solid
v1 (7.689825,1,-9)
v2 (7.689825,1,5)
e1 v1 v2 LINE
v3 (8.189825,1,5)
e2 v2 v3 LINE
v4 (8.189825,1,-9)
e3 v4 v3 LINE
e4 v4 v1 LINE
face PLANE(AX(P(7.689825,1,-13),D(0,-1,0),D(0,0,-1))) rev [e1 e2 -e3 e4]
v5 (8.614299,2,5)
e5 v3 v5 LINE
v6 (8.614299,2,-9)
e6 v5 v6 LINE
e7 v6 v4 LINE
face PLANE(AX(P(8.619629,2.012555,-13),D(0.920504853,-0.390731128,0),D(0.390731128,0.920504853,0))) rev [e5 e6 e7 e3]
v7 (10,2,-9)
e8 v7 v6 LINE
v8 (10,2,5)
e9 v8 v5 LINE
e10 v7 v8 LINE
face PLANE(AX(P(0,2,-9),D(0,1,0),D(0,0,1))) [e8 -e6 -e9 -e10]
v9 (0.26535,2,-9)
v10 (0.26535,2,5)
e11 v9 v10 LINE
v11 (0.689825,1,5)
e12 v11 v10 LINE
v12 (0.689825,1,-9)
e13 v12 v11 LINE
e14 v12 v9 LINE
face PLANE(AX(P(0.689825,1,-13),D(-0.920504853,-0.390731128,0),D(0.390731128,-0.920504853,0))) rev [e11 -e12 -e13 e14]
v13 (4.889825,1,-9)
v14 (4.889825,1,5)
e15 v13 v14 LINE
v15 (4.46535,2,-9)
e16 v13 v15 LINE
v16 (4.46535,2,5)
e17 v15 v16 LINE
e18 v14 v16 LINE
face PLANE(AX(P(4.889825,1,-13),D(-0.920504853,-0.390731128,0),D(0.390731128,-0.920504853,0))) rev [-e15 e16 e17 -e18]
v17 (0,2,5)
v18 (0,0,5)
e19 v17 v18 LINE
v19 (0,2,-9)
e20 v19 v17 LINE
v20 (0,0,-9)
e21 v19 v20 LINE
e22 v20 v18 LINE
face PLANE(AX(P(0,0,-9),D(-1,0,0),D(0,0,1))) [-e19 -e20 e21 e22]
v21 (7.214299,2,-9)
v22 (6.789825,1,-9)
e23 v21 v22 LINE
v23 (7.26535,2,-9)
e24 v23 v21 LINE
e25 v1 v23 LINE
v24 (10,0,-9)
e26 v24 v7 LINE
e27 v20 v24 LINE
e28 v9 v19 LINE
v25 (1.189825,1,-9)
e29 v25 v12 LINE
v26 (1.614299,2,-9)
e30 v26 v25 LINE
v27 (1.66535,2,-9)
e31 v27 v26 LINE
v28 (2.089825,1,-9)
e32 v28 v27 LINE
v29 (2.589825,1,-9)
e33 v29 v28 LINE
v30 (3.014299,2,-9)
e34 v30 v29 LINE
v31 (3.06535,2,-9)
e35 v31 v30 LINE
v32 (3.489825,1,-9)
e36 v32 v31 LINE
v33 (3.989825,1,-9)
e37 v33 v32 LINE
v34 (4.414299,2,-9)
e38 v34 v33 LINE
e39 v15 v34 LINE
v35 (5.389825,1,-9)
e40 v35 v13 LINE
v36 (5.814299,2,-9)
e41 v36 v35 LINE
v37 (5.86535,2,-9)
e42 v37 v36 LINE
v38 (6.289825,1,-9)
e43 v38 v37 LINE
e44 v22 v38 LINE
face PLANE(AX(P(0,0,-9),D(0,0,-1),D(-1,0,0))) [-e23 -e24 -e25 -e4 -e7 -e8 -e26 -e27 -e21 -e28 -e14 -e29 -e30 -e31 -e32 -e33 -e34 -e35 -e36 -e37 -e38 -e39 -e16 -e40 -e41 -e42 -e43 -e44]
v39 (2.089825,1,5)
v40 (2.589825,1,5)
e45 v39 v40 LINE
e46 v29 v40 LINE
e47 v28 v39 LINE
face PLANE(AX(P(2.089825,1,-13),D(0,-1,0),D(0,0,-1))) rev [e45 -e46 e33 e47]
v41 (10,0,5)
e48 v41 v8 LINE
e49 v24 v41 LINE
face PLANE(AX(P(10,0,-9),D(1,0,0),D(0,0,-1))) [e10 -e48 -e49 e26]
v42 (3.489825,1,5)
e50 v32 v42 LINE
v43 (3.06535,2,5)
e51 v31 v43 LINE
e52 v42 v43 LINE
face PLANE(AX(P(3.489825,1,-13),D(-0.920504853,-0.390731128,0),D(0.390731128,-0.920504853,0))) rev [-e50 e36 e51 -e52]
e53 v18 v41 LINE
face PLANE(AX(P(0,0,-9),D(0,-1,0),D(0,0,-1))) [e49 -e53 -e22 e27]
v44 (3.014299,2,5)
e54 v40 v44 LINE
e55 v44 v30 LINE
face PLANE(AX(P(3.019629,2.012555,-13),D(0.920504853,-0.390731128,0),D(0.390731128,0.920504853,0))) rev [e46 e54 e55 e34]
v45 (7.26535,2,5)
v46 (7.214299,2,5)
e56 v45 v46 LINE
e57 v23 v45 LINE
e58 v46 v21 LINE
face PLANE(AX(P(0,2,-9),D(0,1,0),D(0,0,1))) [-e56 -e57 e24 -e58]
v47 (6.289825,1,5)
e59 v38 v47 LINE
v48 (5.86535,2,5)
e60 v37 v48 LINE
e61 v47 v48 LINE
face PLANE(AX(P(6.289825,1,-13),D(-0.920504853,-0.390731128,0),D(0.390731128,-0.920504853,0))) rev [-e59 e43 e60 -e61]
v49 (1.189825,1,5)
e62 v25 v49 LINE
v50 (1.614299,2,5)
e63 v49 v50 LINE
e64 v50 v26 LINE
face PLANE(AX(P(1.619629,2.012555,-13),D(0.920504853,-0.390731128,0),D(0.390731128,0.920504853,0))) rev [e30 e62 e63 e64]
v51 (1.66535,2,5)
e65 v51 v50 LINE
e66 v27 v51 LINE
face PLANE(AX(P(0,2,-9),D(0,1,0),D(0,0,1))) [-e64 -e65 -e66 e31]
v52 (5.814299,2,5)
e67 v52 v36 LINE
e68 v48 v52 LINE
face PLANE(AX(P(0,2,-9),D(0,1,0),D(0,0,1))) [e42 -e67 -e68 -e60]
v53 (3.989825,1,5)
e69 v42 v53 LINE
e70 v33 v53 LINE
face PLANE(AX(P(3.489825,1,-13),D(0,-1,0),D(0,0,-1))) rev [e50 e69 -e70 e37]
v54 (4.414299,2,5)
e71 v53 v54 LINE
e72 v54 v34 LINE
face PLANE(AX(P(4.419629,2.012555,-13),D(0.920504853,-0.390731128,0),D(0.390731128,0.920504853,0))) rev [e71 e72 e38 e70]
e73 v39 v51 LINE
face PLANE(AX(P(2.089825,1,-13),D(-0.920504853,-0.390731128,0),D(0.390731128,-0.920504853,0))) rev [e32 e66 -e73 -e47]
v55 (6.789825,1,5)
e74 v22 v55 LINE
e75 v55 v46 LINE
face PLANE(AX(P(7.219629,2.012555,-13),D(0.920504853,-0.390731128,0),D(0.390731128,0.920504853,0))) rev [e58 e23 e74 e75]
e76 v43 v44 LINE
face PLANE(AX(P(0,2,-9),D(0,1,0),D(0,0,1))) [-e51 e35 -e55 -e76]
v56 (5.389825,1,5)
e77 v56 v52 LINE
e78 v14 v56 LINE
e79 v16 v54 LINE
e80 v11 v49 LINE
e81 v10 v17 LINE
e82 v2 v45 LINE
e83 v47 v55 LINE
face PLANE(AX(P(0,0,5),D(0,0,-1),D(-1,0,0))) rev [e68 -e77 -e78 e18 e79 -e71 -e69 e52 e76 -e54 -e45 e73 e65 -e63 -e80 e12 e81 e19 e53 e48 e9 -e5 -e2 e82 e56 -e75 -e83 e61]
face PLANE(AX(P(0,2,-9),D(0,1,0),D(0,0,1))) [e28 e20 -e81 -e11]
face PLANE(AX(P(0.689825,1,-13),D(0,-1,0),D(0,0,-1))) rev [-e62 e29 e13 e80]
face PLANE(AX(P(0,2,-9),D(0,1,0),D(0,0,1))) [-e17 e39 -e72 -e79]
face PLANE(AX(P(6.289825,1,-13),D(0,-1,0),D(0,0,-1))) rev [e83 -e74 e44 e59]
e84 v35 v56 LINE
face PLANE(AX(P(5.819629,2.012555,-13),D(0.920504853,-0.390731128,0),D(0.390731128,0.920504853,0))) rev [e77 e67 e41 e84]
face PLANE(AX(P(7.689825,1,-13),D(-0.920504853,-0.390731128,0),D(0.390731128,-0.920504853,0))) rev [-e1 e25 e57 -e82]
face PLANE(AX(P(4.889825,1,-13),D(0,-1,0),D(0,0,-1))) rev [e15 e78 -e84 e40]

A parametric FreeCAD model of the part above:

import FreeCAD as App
import Part
import Sketcher

V = App.Vector
Q = App.Units.Quantity


def add_polygon(sketch, points):
    """Adds a closed chain of lines whose ends are joined by coincident constraints."""
    first, n = sketch.GeometryCount, len(points)
    for a, b in zip(points, points[1:] + points[:1]):
        sketch.addGeometry(Part.LineSegment(App.Vector(*a, 0), App.Vector(*b, 0)), False)
    for i in range(n):
        sketch.addConstraint(Sketcher.Constraint("Coincident", first + i, 2, first + (i + 1) % n, 1))

doc = App.newDocument("Part")
body = doc.addObject("PartDesign::Body", "Body")

# Sketch on XY plane
sketch1 = doc.addObject("Sketcher::SketchObject", "Sketch")
body.addObject(sketch1)
sketch1.AttachmentSupport = (doc.XY_Plane, [""])
sketch1.MapMode = "FlatFace"
add_polygon(sketch1, [(0, 2), (0, 0), (10, 0), (10, 2)])  # lines 0-3
sketch1.addConstraint([
    Sketcher.Constraint("Vertical", 0),
    Sketcher.Constraint("Horizontal", 1),
    Sketcher.Constraint("Vertical", 2),
    Sketcher.Constraint("Horizontal", 3),
    Sketcher.Constraint("Coincident", 0, 2, -1, 1),
    Sketcher.Constraint("DistanceX", 1, 1, 1, 2, Q("10 mm")),
    Sketcher.Constraint("DistanceY", 0, 2, 0, 1, Q("2 mm")),
])
pad1 = doc.addObject("PartDesign::Pad", "Pad")
body.addObject(pad1)
pad1.Profile = sketch1
pad1.Type = "TwoLengths"
pad1.Length = 5
pad1.Length2 = 9

# Sketch on XY plane
sketch2 = doc.addObject("Sketcher::SketchObject", "Sketch001")
body.addObject(sketch2)
sketch2.AttachmentSupport = (doc.XY_Plane, [""])
sketch2.MapMode = "FlatFace"
sketch2.AttachmentOffset = App.Placement(V(0, 0, 5), App.Rotation())
add_polygon(sketch2, [(0.7, 1), (1.2, 1), (1.6, 2), (0.3, 2)])  # lines 0-3
sketch2.addConstraint([
    Sketcher.Constraint("Horizontal", 0),
    Sketcher.Constraint("Horizontal", 2),
    Sketcher.Constraint("Equal", 1, 3),
    Sketcher.Constraint("Angle", 1, Q("67 deg")),
    Sketcher.Constraint("DistanceX", 0, 1, 0, 2, Q("0.5 mm")),
    Sketcher.Constraint("DistanceY", -1, 1, 0, 2, Q("1 mm")),
    Sketcher.Constraint("Distance", 1, Q("1.1 mm")),
    Sketcher.Constraint("DistanceX", -1, 1, 1, 2, Q("1.619629 mm")),
])
pocket1 = doc.addObject("PartDesign::Pocket", "Pocket")
body.addObject(pocket1)
pocket1.Profile = sketch2
pocket1.Length = 18
doc.recompute()

linearpattern = doc.addObject("PartDesign::LinearPattern", "LinearPattern")
body.addObject(linearpattern)
linearpattern.Originals = [pocket1]
linearpattern.Direction = (doc.X_Axis, [""])
linearpattern.Mode = "offset"
linearpattern.Offset = 1.4
linearpattern.Occurrences = 6
body.Tip = linearpattern

doc.recompute()
